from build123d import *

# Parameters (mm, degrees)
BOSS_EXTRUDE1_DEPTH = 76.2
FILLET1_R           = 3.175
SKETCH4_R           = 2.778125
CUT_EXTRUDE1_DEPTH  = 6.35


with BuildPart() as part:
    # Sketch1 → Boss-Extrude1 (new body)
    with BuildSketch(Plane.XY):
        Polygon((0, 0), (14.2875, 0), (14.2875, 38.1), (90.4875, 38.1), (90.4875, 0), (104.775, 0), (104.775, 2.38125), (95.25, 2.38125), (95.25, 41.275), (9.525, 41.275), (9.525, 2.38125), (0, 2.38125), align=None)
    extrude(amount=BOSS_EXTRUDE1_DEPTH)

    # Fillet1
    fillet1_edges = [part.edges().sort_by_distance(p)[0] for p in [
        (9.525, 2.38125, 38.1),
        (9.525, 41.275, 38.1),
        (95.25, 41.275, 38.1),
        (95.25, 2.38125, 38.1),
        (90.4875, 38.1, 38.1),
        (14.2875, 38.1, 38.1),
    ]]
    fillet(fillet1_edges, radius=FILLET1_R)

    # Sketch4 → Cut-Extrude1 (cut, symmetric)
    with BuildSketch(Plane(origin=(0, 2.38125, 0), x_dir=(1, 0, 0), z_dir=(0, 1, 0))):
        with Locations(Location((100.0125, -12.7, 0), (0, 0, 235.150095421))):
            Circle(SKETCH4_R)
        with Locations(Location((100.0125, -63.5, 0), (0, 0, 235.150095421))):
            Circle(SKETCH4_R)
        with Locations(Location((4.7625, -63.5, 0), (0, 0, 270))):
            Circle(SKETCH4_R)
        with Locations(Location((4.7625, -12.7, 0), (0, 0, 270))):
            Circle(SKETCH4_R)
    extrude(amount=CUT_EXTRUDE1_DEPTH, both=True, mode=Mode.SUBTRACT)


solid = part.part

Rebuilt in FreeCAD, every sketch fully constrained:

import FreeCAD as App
import Part
import Sketcher
from FreeCAD import Vector
Q = App.Units.Quantity


def edges_at(feature, points):
    """Names of the edges that pass closest to the given points."""
    edges = feature.Shape.Edges
    near = lambda p: min(range(len(edges)), key=lambda i: edges[i].distToShape(Part.Vertex(*p))[0])
    return sorted({f"Edge{near(p) + 1}" for p in points})


def add_polygon(sketch, points):
    """Adds a closed chain of lines whose ends are joined by coincident constraints."""
    first, n = sketch.GeometryCount, len(points)
    for a, b in zip(points, points[1:] + points[:1]):
        sketch.addGeometry(Part.LineSegment(App.Vector(*a, 0), App.Vector(*b, 0)), False)
    for i in range(n):
        sketch.addConstraint(Sketcher.Constraint("Coincident", first + i, 2, first + (i + 1) % n, 1))

doc = App.newDocument("Part")
body = doc.addObject("PartDesign::Body", "Body")

# Sketch on XY plane
sketch1 = doc.addObject("Sketcher::SketchObject", "Sketch")
body.addObject(sketch1)
sketch1.AttachmentSupport = (doc.XY_Plane, [""])
sketch1.MapMode = "FlatFace"
add_polygon(sketch1, [(0, 0), (14.2875, 0), (14.2875, 38.1), (90.4875, 38.1), (90.4875, 0), (104.775, 0), (104.775, 2.38125), (95.25, 2.38125), (95.25, 41.275), (9.525, 41.275), (9.525, 2.38125), (0, 2.38125)])  # lines 0-11
sketch1.addConstraint([
    Sketcher.Constraint("Horizontal", 0),
    Sketcher.Constraint("Vertical", 1),
    Sketcher.Constraint("Horizontal", 2),
    Sketcher.Constraint("Vertical", 3),
    Sketcher.Constraint("Horizontal", 4),
    Sketcher.Constraint("Vertical", 5),
    Sketcher.Constraint("Horizontal", 6),
    Sketcher.Constraint("Vertical", 7),
    Sketcher.Constraint("Horizontal", 8),
    Sketcher.Constraint("Vertical", 9),
    Sketcher.Constraint("Horizontal", 10),
    Sketcher.Constraint("Vertical", 11),
    Sketcher.Constraint("Coincident", 11, 2, -1, 1),
    Sketcher.Constraint("PointOnObject", 3, 2, -1),
    Sketcher.Constraint("Horizontal", 6, 2, 9, 2),
    Sketcher.Constraint("Equal", 0, 4),
    Sketcher.Constraint("Equal", 6, 10),
    Sketcher.Constraint("DistanceX", 2, 1, 2, 2, Q("3 in")),
    Sketcher.Constraint("DistanceY", 1, 1, 1, 2, Q("1.5 in")),
    Sketcher.Constraint("DistanceX", 0, 1, 0, 2, Q("0.5625 in")),
    Sketcher.Constraint("DistanceX", 6, 2, 6, 1, Q("0.375 in")),
    Sketcher.Constraint("DistanceY", 5, 1, 5, 2, Q("0.09375 in")),
    Sketcher.Constraint("DistanceY", 7, 1, 7, 2, Q("1.53125 in")),
])
pad1 = doc.addObject("PartDesign::Pad", "Pad")
body.addObject(pad1)
pad1.Profile = sketch1
pad1.Length = Q("3 in")
doc.recompute()

fillet = doc.addObject("PartDesign::Fillet", "Fillet")
body.addObject(fillet)
fillet.Base = (pad1, edges_at(pad1, [
    (9.525, 2.381, 38.1),
    (9.525, 41.275, 38.1),
    (95.25, 41.275, 38.1),
    (95.25, 2.381, 38.1),
    (90.487, 38.1, 38.1),
    (14.287, 38.1, 38.1),
]))
fillet.Radius = Q("0.125 in")

# Sketch on XZ plane
sketch2 = doc.addObject("Sketcher::SketchObject", "Sketch001")
body.addObject(sketch2)
sketch2.AttachmentSupport = (doc.XZ_Plane, [""])
sketch2.MapMode = "FlatFace"
sketch2.AttachmentOffset = App.Placement(Vector(0, 0, -0.09375 * 25.4), App.Rotation())
sketch2.addGeometry([
    Part.Circle(Vector(100.0125, 12.7, 0), Vector(0, 0, 1), 2.778125),
    Part.Circle(Vector(100.0125, 63.5, 0), Vector(0, 0, 1), 2.778125),
    Part.Circle(Vector(4.7625, 63.5, 0), Vector(0, 0, 1), 2.778125),
    Part.Circle(Vector(4.7625, 12.7, 0), Vector(0, 0, 1), 2.778125),
], False)
sketch2.addConstraint([
    Sketcher.Constraint("Equal", 0, 1),
    Sketcher.Constraint("Equal", 1, 2),
    Sketcher.Constraint("Equal", 2, 3),
    Sketcher.Constraint("Horizontal", 1, 3, 2, 3),
    Sketcher.Constraint("Horizontal", 0, 3, 3, 3),
    Sketcher.Constraint("Vertical", 0, 3, 1, 3),
    Sketcher.Constraint("Vertical", 2, 3, 3, 3),
    Sketcher.Constraint("Diameter", 0, Q("0.21875 in")),
    Sketcher.Constraint("DistanceY", 0, 3, 1, 3, Q("2 in")),
    Sketcher.Constraint("DistanceY", -1, 1, 0, 3, Q("0.5 in")),
    Sketcher.Constraint("DistanceX", 2, 3, 1, 3, Q("3.75 in")),
    Sketcher.Constraint("DistanceX", -1, 1, 0, 3, Q("3.9375 in")),
])
pocket1 = doc.addObject("PartDesign::Pocket", "Pocket")
body.addObject(pocket1)
pocket1.Profile = sketch2
pocket1.Length = Q("0.5 in")
pocket1.Midplane = True

doc.recompute()
